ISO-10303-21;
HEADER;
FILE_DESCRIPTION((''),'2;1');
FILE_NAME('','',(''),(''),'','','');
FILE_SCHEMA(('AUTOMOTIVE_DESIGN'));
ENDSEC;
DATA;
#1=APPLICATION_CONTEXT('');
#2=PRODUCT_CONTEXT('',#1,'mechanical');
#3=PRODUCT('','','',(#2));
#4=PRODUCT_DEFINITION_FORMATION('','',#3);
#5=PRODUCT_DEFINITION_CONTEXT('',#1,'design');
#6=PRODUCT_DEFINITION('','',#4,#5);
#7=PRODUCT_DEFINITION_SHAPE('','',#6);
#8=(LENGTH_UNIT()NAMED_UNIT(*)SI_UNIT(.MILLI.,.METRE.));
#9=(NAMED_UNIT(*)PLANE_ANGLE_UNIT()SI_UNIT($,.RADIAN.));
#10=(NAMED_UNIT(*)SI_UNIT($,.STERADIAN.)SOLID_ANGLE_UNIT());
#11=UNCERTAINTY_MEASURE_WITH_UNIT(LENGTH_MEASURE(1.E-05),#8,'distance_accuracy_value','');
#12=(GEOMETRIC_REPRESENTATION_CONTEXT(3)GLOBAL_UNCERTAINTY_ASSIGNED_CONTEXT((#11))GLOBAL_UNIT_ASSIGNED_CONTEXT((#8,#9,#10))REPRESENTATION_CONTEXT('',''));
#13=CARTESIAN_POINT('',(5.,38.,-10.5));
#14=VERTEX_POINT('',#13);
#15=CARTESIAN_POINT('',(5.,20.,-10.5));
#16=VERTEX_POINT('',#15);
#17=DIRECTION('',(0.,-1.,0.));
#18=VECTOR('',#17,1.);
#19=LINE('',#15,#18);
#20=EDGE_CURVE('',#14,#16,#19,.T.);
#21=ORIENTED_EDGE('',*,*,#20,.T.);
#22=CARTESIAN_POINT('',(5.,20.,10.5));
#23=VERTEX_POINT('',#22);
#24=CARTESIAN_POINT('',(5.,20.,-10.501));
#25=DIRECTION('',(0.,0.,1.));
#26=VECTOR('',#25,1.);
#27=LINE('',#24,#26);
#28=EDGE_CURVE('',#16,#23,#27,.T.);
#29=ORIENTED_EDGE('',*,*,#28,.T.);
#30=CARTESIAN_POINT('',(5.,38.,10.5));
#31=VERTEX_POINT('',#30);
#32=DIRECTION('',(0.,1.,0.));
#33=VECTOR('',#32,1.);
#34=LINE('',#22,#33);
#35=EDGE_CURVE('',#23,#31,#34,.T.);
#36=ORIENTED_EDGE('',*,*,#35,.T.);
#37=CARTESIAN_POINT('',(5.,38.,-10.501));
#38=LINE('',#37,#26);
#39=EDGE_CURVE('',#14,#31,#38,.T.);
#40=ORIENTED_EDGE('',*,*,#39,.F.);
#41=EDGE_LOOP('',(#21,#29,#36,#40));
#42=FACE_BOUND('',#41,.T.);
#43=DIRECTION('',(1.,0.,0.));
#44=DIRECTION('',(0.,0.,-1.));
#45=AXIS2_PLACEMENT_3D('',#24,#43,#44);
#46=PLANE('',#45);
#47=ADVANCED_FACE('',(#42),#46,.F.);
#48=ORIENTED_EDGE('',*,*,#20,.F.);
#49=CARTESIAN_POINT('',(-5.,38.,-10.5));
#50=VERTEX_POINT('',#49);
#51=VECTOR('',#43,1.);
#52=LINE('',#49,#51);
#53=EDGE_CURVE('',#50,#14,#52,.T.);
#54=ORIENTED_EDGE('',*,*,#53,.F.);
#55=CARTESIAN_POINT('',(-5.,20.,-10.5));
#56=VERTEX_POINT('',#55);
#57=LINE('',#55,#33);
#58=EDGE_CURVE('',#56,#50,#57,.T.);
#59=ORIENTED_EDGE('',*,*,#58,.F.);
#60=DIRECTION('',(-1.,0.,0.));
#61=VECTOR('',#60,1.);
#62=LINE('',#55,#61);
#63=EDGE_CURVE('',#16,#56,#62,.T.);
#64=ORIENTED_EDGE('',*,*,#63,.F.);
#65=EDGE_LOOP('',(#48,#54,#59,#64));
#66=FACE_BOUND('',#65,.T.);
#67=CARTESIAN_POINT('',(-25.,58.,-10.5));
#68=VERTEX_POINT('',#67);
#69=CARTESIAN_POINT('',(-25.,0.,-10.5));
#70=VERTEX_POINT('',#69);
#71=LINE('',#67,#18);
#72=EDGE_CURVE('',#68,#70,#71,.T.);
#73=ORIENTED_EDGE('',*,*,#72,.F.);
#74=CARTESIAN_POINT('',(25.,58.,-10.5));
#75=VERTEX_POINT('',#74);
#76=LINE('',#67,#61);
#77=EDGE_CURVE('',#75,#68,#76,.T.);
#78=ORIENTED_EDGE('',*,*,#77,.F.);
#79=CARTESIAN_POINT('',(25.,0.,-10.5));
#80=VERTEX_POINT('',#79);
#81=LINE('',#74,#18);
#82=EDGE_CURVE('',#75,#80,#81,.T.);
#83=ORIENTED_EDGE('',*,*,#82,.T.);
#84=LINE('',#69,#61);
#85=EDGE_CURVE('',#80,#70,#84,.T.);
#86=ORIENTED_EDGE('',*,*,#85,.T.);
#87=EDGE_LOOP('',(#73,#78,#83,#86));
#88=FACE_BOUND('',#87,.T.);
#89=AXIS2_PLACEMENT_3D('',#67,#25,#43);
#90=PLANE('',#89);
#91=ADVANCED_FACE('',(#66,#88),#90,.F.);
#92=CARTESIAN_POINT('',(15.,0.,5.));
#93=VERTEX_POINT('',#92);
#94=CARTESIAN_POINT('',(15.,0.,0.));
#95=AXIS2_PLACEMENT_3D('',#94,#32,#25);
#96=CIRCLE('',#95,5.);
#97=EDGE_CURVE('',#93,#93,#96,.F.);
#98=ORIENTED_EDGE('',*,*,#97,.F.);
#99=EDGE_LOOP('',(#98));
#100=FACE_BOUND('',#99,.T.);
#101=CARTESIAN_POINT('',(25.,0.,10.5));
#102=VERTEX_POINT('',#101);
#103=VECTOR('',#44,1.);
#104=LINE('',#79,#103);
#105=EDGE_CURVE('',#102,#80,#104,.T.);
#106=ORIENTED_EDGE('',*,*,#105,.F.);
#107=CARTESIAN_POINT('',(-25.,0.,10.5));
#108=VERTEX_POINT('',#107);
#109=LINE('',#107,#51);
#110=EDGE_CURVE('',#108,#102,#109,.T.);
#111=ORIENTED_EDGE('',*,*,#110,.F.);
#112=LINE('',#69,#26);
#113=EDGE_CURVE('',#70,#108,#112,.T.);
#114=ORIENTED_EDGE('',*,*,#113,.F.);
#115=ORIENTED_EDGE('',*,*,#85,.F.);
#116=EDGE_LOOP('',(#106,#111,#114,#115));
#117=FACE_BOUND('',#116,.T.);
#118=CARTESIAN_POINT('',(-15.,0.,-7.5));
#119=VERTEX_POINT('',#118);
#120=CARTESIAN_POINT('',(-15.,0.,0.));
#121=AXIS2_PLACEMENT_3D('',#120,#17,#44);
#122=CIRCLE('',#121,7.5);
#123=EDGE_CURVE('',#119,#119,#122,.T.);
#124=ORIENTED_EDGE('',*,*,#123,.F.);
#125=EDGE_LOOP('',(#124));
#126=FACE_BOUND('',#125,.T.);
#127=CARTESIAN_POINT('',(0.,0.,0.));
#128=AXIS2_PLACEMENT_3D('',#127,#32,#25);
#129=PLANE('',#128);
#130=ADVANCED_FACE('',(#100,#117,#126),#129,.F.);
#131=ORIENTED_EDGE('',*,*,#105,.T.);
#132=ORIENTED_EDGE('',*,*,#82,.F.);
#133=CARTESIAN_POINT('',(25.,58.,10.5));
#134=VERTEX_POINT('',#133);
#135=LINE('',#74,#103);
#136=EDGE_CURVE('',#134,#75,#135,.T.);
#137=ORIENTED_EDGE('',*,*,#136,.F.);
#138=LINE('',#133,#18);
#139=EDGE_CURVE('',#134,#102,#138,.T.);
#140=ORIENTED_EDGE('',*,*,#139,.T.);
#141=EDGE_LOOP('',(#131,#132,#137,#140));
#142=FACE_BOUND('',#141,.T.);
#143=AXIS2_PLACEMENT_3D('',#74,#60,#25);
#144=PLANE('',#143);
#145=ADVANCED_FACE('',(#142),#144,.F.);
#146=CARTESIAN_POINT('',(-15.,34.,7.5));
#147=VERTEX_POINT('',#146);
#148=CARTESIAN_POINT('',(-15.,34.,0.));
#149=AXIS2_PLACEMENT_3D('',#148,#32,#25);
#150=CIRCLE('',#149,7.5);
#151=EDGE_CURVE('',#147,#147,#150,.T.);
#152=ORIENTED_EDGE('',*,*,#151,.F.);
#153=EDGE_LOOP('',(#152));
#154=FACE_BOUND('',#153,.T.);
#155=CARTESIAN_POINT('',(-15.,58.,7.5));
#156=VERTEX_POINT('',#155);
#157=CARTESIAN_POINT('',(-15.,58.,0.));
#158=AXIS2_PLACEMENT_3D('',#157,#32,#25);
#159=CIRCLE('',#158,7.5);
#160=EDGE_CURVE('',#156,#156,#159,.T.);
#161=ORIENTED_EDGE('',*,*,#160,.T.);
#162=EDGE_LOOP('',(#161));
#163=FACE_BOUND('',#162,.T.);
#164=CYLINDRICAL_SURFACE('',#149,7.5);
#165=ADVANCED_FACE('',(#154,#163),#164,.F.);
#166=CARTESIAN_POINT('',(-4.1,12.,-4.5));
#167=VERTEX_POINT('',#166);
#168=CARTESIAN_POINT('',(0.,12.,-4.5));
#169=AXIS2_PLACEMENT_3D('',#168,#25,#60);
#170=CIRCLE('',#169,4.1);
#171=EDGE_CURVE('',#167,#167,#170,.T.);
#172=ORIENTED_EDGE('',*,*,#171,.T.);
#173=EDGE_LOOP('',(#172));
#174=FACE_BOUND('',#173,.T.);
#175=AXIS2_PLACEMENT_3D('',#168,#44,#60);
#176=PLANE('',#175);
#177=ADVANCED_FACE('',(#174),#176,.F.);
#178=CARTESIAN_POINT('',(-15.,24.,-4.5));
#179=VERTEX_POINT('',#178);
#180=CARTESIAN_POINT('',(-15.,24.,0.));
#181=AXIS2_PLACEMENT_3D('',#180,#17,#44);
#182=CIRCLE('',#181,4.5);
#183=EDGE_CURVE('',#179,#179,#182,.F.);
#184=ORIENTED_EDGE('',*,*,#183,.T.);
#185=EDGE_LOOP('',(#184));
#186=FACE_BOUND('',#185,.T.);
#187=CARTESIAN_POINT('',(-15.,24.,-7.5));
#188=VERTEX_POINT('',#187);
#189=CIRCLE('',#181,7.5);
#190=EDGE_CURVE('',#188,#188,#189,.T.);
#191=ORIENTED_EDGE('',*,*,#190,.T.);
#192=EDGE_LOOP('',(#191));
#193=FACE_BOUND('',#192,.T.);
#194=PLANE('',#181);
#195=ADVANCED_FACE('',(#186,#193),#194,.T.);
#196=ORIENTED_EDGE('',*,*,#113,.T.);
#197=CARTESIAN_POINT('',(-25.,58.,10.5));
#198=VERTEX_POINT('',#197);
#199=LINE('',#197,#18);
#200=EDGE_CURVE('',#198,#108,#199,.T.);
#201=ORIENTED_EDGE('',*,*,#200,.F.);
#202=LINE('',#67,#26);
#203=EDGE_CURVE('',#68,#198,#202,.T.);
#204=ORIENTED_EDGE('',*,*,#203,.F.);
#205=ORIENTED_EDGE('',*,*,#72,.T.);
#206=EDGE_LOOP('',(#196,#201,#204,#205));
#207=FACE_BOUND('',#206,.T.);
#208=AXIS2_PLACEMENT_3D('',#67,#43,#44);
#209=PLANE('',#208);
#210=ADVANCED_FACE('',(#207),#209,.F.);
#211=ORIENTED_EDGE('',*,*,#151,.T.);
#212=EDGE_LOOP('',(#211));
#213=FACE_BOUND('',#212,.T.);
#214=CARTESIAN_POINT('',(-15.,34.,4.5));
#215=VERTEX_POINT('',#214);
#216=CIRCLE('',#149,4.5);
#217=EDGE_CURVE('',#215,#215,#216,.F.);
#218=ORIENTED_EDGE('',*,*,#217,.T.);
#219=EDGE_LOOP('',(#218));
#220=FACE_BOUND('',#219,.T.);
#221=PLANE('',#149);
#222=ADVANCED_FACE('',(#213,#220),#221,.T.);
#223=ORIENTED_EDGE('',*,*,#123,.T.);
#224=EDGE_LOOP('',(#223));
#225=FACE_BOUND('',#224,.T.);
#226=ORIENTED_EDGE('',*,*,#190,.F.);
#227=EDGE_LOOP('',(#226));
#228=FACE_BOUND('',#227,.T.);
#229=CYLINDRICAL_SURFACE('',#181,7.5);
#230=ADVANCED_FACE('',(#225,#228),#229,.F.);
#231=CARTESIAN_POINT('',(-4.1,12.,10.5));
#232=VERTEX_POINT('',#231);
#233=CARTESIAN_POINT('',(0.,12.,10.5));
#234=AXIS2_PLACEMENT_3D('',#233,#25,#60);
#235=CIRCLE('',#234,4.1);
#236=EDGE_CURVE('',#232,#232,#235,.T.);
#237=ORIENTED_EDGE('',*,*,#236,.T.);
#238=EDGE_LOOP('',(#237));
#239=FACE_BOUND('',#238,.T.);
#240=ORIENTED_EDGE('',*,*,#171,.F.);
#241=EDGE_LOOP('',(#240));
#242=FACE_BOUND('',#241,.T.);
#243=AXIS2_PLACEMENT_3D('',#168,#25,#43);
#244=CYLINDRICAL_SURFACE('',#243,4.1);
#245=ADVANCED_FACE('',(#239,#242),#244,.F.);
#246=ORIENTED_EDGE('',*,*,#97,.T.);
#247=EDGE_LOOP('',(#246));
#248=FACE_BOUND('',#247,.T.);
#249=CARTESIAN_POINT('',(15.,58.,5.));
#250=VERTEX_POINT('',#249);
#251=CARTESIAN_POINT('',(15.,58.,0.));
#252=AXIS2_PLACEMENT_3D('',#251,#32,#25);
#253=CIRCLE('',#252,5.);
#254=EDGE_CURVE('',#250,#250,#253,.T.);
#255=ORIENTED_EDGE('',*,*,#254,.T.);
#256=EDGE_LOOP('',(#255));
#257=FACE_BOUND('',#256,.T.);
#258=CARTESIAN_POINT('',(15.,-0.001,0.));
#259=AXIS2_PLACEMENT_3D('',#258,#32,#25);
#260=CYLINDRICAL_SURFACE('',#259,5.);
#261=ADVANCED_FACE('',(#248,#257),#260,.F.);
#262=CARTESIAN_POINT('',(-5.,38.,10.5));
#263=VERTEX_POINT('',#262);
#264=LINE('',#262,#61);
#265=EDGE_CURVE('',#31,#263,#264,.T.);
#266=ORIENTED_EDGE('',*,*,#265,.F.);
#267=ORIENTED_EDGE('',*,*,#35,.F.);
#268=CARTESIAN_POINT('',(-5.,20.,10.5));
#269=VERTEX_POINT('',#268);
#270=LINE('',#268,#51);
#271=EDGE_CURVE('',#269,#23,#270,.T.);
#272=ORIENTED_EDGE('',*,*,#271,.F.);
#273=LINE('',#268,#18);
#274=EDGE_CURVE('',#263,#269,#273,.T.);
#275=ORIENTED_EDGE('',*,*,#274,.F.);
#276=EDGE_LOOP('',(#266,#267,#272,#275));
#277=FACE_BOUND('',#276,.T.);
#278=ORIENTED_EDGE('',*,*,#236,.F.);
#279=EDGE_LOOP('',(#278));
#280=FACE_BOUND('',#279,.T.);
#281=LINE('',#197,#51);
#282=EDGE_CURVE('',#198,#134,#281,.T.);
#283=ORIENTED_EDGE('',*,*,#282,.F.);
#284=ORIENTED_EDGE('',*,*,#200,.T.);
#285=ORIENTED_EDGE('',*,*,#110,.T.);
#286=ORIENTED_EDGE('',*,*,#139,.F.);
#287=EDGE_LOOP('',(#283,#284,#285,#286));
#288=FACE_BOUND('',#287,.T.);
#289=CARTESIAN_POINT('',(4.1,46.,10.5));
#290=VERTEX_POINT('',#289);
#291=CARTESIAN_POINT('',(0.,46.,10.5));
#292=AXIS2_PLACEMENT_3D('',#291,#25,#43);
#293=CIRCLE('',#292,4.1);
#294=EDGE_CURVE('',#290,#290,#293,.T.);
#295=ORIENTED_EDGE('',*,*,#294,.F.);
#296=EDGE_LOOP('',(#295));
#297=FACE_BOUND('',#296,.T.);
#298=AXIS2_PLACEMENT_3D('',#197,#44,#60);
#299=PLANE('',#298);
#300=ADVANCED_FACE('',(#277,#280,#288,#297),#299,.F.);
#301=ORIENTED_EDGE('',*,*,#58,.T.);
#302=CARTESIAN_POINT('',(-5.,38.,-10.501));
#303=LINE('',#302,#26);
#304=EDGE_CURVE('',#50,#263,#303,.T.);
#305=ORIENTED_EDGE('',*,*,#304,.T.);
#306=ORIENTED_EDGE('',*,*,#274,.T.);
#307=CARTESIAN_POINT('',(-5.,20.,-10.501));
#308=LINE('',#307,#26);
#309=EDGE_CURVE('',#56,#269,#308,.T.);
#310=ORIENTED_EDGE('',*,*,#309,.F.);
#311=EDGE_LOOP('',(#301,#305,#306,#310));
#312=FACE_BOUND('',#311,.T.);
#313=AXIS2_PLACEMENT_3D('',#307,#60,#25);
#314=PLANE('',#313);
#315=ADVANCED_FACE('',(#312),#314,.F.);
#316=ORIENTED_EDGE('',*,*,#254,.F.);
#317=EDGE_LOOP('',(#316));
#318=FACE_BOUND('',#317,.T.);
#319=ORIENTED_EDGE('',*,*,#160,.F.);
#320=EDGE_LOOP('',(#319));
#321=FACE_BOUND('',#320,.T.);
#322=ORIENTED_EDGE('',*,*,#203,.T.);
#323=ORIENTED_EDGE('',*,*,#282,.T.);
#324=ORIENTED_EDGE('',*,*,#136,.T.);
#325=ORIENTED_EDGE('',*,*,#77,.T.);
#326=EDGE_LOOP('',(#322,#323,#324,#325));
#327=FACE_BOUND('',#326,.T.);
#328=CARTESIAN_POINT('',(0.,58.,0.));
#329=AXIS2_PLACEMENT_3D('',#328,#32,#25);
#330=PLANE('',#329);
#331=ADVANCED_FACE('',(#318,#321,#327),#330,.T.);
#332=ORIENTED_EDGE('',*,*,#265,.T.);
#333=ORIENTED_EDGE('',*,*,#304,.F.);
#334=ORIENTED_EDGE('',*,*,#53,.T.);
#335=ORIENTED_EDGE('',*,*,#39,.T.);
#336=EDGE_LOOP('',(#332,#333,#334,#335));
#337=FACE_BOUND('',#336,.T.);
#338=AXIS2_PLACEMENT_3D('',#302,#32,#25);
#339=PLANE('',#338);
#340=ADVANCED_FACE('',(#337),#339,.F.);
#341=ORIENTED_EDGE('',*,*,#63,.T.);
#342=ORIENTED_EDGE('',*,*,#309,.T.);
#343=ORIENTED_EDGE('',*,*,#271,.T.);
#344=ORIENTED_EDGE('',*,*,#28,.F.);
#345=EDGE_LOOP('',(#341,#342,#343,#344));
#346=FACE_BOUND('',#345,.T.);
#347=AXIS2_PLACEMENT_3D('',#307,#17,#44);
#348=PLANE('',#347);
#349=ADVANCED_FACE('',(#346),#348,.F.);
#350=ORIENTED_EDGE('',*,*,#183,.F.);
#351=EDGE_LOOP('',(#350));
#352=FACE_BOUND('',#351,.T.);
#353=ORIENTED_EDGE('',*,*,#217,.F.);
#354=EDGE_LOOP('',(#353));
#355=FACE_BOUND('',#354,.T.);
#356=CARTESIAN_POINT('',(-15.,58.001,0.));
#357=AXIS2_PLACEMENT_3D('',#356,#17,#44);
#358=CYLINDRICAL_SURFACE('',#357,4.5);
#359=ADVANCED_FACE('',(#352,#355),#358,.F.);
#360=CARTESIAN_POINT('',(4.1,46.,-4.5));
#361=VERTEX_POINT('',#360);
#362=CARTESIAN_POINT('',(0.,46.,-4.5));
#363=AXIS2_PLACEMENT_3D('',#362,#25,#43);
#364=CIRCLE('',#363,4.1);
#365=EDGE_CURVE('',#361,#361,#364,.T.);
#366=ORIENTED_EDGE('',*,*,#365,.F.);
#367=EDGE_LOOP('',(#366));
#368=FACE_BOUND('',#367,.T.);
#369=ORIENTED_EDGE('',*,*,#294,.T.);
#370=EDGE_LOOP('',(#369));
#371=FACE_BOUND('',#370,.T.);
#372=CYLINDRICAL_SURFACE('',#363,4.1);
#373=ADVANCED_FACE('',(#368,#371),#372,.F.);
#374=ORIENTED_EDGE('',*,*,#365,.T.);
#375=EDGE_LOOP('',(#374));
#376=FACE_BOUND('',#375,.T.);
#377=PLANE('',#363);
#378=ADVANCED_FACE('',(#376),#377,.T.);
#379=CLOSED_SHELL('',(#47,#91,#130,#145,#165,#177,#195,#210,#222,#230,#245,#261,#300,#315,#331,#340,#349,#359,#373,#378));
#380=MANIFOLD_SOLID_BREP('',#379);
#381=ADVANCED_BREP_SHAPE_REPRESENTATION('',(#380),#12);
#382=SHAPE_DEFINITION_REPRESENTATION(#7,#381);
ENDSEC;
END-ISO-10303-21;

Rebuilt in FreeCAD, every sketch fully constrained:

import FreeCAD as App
import Part
import Sketcher
Q = App.Units.Quantity


def add_polygon(sketch, points):
    """Adds a closed chain of lines whose ends are joined by coincident constraints."""
    first, n = sketch.GeometryCount, len(points)
    for a, b in zip(points, points[1:] + points[:1]):
        sketch.addGeometry(Part.LineSegment(App.Vector(*a, 0), App.Vector(*b, 0)), False)
    for i in range(n):
        sketch.addConstraint(Sketcher.Constraint("Coincident", first + i, 2, first + (i + 1) % n, 1))

doc = App.newDocument("Part")
body = doc.addObject("PartDesign::Body", "Body")

# Sketch on XZ plane
sketch1 = doc.addObject("Sketcher::SketchObject", "Sketch")
body.addObject(sketch1)
sketch1.AttachmentSupport = (doc.XZ_Plane, [""])
sketch1.MapMode = "FlatFace"
add_polygon(sketch1, [(-25, -10), (-25, 10), (25, 10), (25, -10)])  # lines 0-3
sketch1.addConstraint([
    Sketcher.Constraint("Vertical", 0),
    Sketcher.Constraint("Horizontal", 1),
    Sketcher.Constraint("Vertical", 2),
    Sketcher.Constraint("Horizontal", 3),
    Sketcher.Constraint("Symmetric", 0, 2, 2, 2, -1, 1),
    Sketcher.Constraint("DistanceX", 1, 1, 1, 2, Q("50 mm")),
    Sketcher.Constraint("DistanceY", 0, 1, 0, 2, Q("21 mm")),
])
pad1 = doc.addObject("PartDesign::Pad", "Pad")
body.addObject(pad1)
pad1.Profile = sketch1
pad1.Length = 58
pad1.Reversed = True

# Sketch on XZ plane
sketch2 = doc.addObject("Sketcher::SketchObject", "Sketch001")
body.addObject(sketch2)
sketch2.AttachmentSupport = (doc.XZ_Plane, [""])
sketch2.MapMode = "FlatFace"
sketch2.AttachmentOffset = App.Placement(App.Vector(0, 0, -58), App.Rotation())
sketch2.addGeometry(Part.Circle(App.Vector(-15, 0, 0), App.Vector(0, 0, 1), 8), False)
sketch2.addConstraint([
    Sketcher.Constraint("PointOnObject", 0, 3, -1),
    Sketcher.Constraint("Diameter", 0, Q("15 mm")),
    Sketcher.Constraint("DistanceX", 0, 3, -1, 1, Q("15 mm")),
])
pocket1 = doc.addObject("PartDesign::Pocket", "Pocket")
body.addObject(pocket1)
pocket1.Profile = sketch2
pocket1.Length = 24
pocket1.Reversed = True

# Sketch on XZ plane
sketch3 = doc.addObject("Sketcher::SketchObject", "Sketch002")
body.addObject(sketch3)
sketch3.AttachmentSupport = (doc.XZ_Plane, [""])
sketch3.MapMode = "FlatFace"
sketch3.AttachmentOffset = App.Placement(App.Vector(0, 0, -58), App.Rotation())
sketch3.addGeometry(Part.Circle(App.Vector(15, 0, 0), App.Vector(0, 0, 1), 5), False)
sketch3.addConstraint([
    Sketcher.Constraint("PointOnObject", 0, 3, -1),
    Sketcher.Constraint("Diameter", 0, Q("10 mm")),
    Sketcher.Constraint("DistanceX", -1, 1, 0, 3, Q("15 mm")),
])
pocket2 = doc.addObject("PartDesign::Pocket", "Pocket001")
body.addObject(pocket2)
pocket2.Profile = sketch3
pocket2.Type = "UpToFirst"
pocket2.Reversed = True

# Sketch on XZ plane
sketch4 = doc.addObject("Sketcher::SketchObject", "Sketch003")
body.addObject(sketch4)
sketch4.AttachmentSupport = (doc.XZ_Plane, [""])
sketch4.MapMode = "FlatFace"
sketch4.AttachmentOffset = App.Placement(App.Vector(0, 0, -24), App.Rotation())
sketch4.addGeometry(Part.Circle(App.Vector(-15, 0, 0), App.Vector(0, 0, 1), 8), False)
sketch4.addConstraint([
    Sketcher.Constraint("PointOnObject", 0, 3, -1),
    Sketcher.Constraint("Diameter", 0, Q("15 mm")),
    Sketcher.Constraint("DistanceX", 0, 3, -1, 1, Q("15 mm")),
])
pocket3 = doc.addObject("PartDesign::Pocket", "Pocket002")
body.addObject(pocket3)
pocket3.Profile = sketch4
pocket3.Length = 24
pocket3.Reversed = True

# Sketch on XZ plane
sketch5 = doc.addObject("Sketcher::SketchObject", "Sketch004")
body.addObject(sketch5)
sketch5.AttachmentSupport = (doc.XZ_Plane, [""])
sketch5.MapMode = "FlatFace"
sketch5.addGeometry(Part.Circle(App.Vector(-15, 0, 0), App.Vector(0, 0, 1), 4.5), False)
sketch5.addConstraint([
    Sketcher.Constraint("PointOnObject", 0, 3, -1),
    Sketcher.Constraint("Diameter", 0, Q("9 mm")),
    Sketcher.Constraint("DistanceX", 0, 3, -1, 1, Q("15 mm")),
])
pocket4 = doc.addObject("PartDesign::Pocket", "Pocket003")
body.addObject(pocket4)
pocket4.Profile = sketch5
pocket4.Length = 34

# Sketch on XY plane
sketch6 = doc.addObject("Sketcher::SketchObject", "Sketch005")
body.addObject(sketch6)
sketch6.AttachmentSupport = (doc.XY_Plane, [""])
sketch6.MapMode = "FlatFace"
sketch6.AttachmentOffset = App.Placement(App.Vector(0, 0, 10.5), App.Rotation())
add_polygon(sketch6, [(-5, 38), (-5, 20), (5, 20), (5, 38)])  # lines 0-3
sketch6.addConstraint([
    Sketcher.Constraint("Vertical", 0),
    Sketcher.Constraint("Horizontal", 1),
    Sketcher.Constraint("Vertical", 2),
    Sketcher.Constraint("Horizontal", 3),
    Sketcher.Constraint("DistanceX", 1, 1, 1, 2, Q("10 mm")),
    Sketcher.Constraint("DistanceY", 0, 2, 0, 1, Q("18 mm")),
    Sketcher.Constraint("DistanceX", 0, 2, -1, 1, Q("5 mm")),
    Sketcher.Constraint("DistanceY", -1, 1, 0, 2, Q("20 mm")),
])
pocket5 = doc.addObject("PartDesign::Pocket", "Pocket004")
body.addObject(pocket5)
pocket5.Profile = sketch6
pocket5.Type = "UpToFirst"

# Sketch on XY plane
sketch7 = doc.addObject("Sketcher::SketchObject", "Sketch006")
body.addObject(sketch7)
sketch7.AttachmentSupport = (doc.XY_Plane, [""])
sketch7.MapMode = "FlatFace"
sketch7.AttachmentOffset = App.Placement(App.Vector(0, 0, 10.5), App.Rotation())
sketch7.addGeometry([
    Part.Circle(App.Vector(0, 46, 0), App.Vector(0, 0, 1), 4.1),
    Part.Circle(App.Vector(0, 12, 0), App.Vector(0, 0, 1), 4.1),
], False)
sketch7.addConstraint([
    Sketcher.Constraint("Equal", 0, 1),
    Sketcher.Constraint("PointOnObject", 0, 3, -2),
    Sketcher.Constraint("PointOnObject", 1, 3, -2),
    Sketcher.Constraint("Diameter", 0, Q("8.2 mm")),
    Sketcher.Constraint("DistanceY", -1, 1, 0, 3, Q("46 mm")),
    Sketcher.Constraint("DistanceY", -1, 1, 1, 3, Q("12 mm")),
])
pocket6 = doc.addObject("PartDesign::Pocket", "Pocket005")
body.addObject(pocket6)
pocket6.Profile = sketch7
pocket6.Length = 15

doc.recompute()
